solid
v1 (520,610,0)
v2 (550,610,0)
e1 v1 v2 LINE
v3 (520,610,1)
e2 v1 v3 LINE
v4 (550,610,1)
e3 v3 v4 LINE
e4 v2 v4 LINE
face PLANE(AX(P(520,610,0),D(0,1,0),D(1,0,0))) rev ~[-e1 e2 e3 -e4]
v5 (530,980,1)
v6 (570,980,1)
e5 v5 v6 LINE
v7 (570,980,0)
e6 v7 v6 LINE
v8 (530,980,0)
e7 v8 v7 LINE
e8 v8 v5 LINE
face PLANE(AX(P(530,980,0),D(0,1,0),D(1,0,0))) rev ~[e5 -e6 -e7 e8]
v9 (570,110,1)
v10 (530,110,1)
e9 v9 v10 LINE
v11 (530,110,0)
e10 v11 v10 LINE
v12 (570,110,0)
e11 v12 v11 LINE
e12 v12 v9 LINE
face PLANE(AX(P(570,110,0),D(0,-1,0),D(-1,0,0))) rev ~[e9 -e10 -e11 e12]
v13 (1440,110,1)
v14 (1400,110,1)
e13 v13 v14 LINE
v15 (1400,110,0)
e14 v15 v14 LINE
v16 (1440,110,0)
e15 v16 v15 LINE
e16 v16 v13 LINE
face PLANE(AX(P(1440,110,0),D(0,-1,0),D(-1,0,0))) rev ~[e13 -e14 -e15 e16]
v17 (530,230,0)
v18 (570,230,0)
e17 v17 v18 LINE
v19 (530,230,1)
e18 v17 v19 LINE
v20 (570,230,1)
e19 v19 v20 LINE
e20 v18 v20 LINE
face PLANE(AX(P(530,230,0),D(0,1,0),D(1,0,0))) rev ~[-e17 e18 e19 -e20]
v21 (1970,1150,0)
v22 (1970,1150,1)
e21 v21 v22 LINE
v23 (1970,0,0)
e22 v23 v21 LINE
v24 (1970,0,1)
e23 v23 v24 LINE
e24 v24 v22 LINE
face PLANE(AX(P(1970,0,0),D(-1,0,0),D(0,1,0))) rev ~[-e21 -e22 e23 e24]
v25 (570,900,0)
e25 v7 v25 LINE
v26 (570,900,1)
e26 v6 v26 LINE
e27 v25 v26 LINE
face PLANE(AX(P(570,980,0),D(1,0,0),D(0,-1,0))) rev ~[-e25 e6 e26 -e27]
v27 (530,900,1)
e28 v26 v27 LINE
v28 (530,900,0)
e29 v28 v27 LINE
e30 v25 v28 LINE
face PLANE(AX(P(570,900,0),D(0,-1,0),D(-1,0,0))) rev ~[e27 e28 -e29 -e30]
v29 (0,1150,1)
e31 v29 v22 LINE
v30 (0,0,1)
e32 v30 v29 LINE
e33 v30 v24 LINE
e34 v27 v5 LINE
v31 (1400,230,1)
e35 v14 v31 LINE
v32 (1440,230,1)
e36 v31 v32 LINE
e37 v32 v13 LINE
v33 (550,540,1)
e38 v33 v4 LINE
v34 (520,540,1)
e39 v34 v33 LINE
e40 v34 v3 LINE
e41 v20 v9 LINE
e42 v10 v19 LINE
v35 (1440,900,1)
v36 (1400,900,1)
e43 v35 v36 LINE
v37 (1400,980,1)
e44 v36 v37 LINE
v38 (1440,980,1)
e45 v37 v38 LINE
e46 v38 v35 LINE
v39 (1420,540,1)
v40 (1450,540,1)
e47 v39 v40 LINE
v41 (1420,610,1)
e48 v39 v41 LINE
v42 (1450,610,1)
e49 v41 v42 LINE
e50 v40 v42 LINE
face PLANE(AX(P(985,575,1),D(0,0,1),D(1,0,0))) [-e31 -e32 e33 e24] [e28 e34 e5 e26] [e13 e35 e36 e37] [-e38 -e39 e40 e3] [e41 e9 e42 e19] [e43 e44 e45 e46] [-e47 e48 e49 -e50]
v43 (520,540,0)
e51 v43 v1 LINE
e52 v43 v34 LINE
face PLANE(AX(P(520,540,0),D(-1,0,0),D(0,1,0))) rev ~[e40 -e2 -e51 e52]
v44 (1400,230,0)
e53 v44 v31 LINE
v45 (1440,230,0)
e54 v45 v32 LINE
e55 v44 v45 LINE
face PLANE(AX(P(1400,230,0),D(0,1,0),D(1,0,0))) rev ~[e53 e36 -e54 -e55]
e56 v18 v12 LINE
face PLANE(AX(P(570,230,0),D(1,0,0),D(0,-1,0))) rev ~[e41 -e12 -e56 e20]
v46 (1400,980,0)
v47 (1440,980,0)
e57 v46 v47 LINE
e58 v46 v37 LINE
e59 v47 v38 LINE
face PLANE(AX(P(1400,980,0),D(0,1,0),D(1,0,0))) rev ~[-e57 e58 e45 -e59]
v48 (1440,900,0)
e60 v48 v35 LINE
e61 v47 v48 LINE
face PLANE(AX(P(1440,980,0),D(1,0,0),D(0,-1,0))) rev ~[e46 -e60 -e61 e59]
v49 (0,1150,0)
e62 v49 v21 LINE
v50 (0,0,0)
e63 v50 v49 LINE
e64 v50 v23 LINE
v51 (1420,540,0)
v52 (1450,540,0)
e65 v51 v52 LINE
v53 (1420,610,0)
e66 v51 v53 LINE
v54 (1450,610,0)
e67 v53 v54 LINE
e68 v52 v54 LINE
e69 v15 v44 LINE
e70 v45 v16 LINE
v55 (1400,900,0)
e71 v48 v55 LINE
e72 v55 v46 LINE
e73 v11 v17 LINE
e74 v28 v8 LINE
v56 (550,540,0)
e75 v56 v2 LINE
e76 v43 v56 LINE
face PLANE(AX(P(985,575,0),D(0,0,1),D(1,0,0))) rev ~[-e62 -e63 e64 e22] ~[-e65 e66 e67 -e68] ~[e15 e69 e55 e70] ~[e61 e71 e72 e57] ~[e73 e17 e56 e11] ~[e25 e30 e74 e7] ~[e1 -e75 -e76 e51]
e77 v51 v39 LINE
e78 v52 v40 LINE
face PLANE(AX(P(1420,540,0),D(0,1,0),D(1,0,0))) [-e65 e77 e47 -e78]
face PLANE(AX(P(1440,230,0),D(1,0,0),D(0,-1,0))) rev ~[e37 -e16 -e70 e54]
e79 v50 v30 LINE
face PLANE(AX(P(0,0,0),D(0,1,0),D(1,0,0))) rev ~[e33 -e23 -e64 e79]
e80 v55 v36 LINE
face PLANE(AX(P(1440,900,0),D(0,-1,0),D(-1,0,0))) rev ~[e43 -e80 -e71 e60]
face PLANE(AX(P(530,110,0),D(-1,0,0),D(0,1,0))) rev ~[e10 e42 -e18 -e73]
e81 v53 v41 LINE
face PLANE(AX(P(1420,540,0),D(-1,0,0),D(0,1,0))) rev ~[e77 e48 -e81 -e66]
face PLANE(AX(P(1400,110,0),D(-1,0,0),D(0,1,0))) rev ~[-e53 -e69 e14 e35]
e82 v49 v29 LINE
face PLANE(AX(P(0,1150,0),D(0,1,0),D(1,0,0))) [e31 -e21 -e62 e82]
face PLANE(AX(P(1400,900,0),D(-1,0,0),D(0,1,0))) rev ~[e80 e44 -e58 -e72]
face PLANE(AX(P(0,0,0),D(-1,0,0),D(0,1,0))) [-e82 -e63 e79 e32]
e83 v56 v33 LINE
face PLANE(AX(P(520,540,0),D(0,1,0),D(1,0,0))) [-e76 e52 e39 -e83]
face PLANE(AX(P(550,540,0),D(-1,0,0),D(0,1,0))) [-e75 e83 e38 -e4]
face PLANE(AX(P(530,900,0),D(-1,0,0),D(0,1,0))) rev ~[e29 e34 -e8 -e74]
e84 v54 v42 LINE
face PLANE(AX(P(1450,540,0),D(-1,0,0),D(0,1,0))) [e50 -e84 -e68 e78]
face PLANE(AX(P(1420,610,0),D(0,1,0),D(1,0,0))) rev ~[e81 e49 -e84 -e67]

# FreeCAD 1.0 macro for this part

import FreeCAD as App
import Part
import Sketcher
Q = App.Units.Quantity


def add_polygon(sketch, points):
    """Adds a closed chain of lines whose ends are joined by coincident constraints."""
    first, n = sketch.GeometryCount, len(points)
    for a, b in zip(points, points[1:] + points[:1]):
        sketch.addGeometry(Part.LineSegment(App.Vector(*a, 0), App.Vector(*b, 0)), False)
    for i in range(n):
        sketch.addConstraint(Sketcher.Constraint("Coincident", first + i, 2, first + (i + 1) % n, 1))

doc = App.newDocument("Part")
body = doc.addObject("PartDesign::Body", "Body")

sketch1 = body.newObject("Sketcher::SketchObject", "Sketch")
sketch1.AttachmentSupport = (doc.getObject("XY_Plane"), [""])
sketch1.MapMode = "FlatFace"
add_polygon(sketch1, [(0, 1150), (0, 0), (1970, 0), (1970, 1150)])
add_polygon(sketch1, [(570, 230), (570, 110), (530, 110), (530, 230)])
add_polygon(sketch1, [(1400, 230), (1440, 230), (1440, 110), (1400, 110)])
add_polygon(sketch1, [(550, 540), (520, 540), (520, 610), (550, 610)])
add_polygon(sketch1, [(570, 980), (570, 900), (530, 900), (530, 980)])
add_polygon(sketch1, [(1450, 540), (1420, 540), (1420, 610), (1450, 610)])
add_polygon(sketch1, [(1400, 980), (1440, 980), (1440, 900), (1400, 900)])
sketch1.addConstraint(Sketcher.Constraint("Vertical", 0))
sketch1.addConstraint(Sketcher.Constraint("Horizontal", 1))
sketch1.addConstraint(Sketcher.Constraint("Vertical", 2))
sketch1.addConstraint(Sketcher.Constraint("Horizontal", 3))
sketch1.addConstraint(Sketcher.Constraint("Vertical", 4))
sketch1.addConstraint(Sketcher.Constraint("Horizontal", 5))
sketch1.addConstraint(Sketcher.Constraint("Vertical", 6))
sketch1.addConstraint(Sketcher.Constraint("Horizontal", 7))
sketch1.addConstraint(Sketcher.Constraint("Horizontal", 8))
sketch1.addConstraint(Sketcher.Constraint("Vertical", 9))
sketch1.addConstraint(Sketcher.Constraint("Horizontal", 10))
sketch1.addConstraint(Sketcher.Constraint("Vertical", 11))
sketch1.addConstraint(Sketcher.Constraint("Horizontal", 12))
sketch1.addConstraint(Sketcher.Constraint("Vertical", 13))
sketch1.addConstraint(Sketcher.Constraint("Horizontal", 14))
sketch1.addConstraint(Sketcher.Constraint("Vertical", 15))
sketch1.addConstraint(Sketcher.Constraint("Vertical", 16))
sketch1.addConstraint(Sketcher.Constraint("Horizontal", 17))
sketch1.addConstraint(Sketcher.Constraint("Vertical", 18))
sketch1.addConstraint(Sketcher.Constraint("Horizontal", 19))
sketch1.addConstraint(Sketcher.Constraint("Horizontal", 20))
sketch1.addConstraint(Sketcher.Constraint("Vertical", 21))
sketch1.addConstraint(Sketcher.Constraint("Horizontal", 22))
sketch1.addConstraint(Sketcher.Constraint("Vertical", 23))
sketch1.addConstraint(Sketcher.Constraint("Horizontal", 24))
sketch1.addConstraint(Sketcher.Constraint("Vertical", 25))
sketch1.addConstraint(Sketcher.Constraint("Horizontal", 26))
sketch1.addConstraint(Sketcher.Constraint("Vertical", 27))
sketch1.addConstraint(Sketcher.Constraint("Coincident", 0, 2, -1, 1))
sketch1.addConstraint(Sketcher.Constraint("Horizontal", 7, 2, 8, 2))
sketch1.addConstraint(Sketcher.Constraint("Horizontal", 5, 2, 9, 2))
sketch1.addConstraint(Sketcher.Constraint("Horizontal", 15, 2, 20, 2))
sketch1.addConstraint(Sketcher.Constraint("Horizontal", 14, 2, 21, 2))
sketch1.addConstraint(Sketcher.Constraint("Horizontal", 19, 2, 24, 2))
sketch1.addConstraint(Sketcher.Constraint("Horizontal", 17, 2, 25, 2))
sketch1.addConstraint(Sketcher.Constraint("Vertical", 7, 2, 16, 2))
sketch1.addConstraint(Sketcher.Constraint("Vertical", 6, 2, 17, 2))
sketch1.addConstraint(Sketcher.Constraint("Vertical", 9, 2, 24, 2))
sketch1.addConstraint(Sketcher.Constraint("Vertical", 11, 2, 26, 2))
sketch1.addConstraint(Sketcher.Constraint("Equal", 7, 8))
sketch1.addConstraint(Sketcher.Constraint("Equal", 14, 20))
sketch1.addConstraint(Sketcher.Constraint("DistanceX", 1, 1, 1, 2, Q("1970 mm")))
sketch1.addConstraint(Sketcher.Constraint("DistanceX", 5, 2, 5, 1, Q("40 mm")))
sketch1.addConstraint(Sketcher.Constraint("DistanceX", 12, 2, 12, 1, Q("30 mm")))
sketch1.addConstraint(Sketcher.Constraint("DistanceY", 0, 2, 0, 1, Q("1150 mm")))
sketch1.addConstraint(Sketcher.Constraint("DistanceY", 4, 2, 4, 1, Q("120 mm")))
sketch1.addConstraint(Sketcher.Constraint("DistanceY", 13, 1, 13, 2, Q("70 mm")))
sketch1.addConstraint(Sketcher.Constraint("DistanceY", 16, 2, 16, 1, Q("80 mm")))
sketch1.addConstraint(Sketcher.Constraint("DistanceX", -1, 1, 4, 2, Q("570 mm")))
sketch1.addConstraint(Sketcher.Constraint("DistanceY", -1, 1, 4, 2, Q("110 mm")))
sketch1.addConstraint(Sketcher.Constraint("DistanceX", -1, 1, 8, 2, Q("1440 mm")))
sketch1.addConstraint(Sketcher.Constraint("DistanceX", -1, 1, 12, 2, Q("520 mm")))
sketch1.addConstraint(Sketcher.Constraint("DistanceY", -1, 1, 12, 2, Q("540 mm")))
sketch1.addConstraint(Sketcher.Constraint("DistanceY", -1, 1, 16, 2, Q("900 mm")))
sketch1.addConstraint(Sketcher.Constraint("DistanceX", -1, 1, 20, 2, Q("1420 mm")))
pad1 = body.newObject("PartDesign::Pad", "Pad")
pad1.Profile = sketch1
pad1.Length = 1

doc.recompute()
